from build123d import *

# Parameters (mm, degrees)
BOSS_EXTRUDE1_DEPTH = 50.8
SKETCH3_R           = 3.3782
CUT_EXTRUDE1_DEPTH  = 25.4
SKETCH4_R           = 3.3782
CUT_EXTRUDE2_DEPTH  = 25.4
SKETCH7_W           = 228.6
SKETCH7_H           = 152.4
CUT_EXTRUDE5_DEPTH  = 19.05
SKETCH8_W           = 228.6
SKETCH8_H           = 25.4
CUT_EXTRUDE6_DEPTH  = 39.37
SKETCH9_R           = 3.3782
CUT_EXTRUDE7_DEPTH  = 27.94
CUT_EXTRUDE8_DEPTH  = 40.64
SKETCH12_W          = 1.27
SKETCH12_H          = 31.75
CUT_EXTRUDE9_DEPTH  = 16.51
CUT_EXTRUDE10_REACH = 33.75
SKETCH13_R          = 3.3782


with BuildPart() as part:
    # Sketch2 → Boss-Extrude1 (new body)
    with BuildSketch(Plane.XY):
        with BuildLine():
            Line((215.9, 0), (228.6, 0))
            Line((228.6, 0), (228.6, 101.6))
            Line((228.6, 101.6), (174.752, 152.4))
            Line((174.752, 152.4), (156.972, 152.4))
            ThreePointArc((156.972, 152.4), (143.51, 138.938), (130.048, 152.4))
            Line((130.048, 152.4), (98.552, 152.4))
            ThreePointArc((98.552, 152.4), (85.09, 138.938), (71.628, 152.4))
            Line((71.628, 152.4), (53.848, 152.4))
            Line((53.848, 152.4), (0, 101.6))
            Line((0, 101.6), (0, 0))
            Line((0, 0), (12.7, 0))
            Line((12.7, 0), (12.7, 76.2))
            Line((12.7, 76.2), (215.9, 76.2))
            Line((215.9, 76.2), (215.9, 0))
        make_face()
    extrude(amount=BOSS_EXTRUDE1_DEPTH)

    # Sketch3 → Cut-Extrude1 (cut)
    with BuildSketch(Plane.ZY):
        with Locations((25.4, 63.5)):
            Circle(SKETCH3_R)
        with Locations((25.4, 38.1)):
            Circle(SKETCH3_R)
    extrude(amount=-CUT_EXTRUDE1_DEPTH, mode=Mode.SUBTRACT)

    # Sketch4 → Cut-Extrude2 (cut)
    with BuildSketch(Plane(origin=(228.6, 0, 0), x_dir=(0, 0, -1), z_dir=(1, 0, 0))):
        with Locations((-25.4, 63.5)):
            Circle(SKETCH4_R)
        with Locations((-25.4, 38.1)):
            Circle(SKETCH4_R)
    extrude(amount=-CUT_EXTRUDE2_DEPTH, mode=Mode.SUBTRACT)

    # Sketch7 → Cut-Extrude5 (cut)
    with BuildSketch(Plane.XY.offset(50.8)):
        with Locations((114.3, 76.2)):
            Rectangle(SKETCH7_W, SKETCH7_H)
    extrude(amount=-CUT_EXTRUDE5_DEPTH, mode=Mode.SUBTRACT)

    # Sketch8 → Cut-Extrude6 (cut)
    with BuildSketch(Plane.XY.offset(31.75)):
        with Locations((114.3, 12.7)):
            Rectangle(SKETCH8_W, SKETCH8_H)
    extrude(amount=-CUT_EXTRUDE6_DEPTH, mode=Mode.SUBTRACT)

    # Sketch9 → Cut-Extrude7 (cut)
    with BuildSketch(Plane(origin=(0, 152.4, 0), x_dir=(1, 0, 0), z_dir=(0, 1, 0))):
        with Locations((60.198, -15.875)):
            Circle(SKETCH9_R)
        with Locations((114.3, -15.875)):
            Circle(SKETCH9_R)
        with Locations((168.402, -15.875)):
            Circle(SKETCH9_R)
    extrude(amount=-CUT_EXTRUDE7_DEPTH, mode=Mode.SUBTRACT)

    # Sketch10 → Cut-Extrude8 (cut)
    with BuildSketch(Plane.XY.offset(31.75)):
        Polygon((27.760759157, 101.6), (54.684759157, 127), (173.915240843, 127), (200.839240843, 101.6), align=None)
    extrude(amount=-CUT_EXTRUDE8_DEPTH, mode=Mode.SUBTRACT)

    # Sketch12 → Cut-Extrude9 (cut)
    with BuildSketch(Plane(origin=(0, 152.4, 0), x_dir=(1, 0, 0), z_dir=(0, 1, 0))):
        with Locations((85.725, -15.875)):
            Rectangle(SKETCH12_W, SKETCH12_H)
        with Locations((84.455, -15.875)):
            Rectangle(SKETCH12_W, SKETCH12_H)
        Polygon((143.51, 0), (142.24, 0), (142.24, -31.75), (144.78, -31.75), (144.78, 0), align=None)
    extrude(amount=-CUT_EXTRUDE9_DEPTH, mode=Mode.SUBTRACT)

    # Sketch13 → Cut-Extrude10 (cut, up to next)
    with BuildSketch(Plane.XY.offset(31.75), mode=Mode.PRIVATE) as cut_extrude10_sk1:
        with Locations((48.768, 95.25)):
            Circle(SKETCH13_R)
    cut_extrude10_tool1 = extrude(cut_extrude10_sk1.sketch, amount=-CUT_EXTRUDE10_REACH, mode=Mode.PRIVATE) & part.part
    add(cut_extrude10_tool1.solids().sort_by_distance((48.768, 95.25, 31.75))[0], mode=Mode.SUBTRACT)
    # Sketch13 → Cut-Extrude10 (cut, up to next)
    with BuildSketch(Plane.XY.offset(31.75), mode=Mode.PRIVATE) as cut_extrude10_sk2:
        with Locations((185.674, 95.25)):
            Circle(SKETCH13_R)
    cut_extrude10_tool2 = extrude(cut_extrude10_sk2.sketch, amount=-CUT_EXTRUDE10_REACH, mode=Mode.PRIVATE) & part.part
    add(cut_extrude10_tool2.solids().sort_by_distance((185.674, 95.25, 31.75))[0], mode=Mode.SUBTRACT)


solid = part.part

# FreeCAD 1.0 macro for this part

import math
import FreeCAD as App
import Part
import Sketcher
from FreeCAD import Vector
Q = App.Units.Quantity


def add_polygon(sketch, points):
    """Adds a closed chain of lines whose ends are joined by coincident constraints."""
    first, n = sketch.GeometryCount, len(points)
    for a, b in zip(points, points[1:] + points[:1]):
        sketch.addGeometry(Part.LineSegment(App.Vector(*a, 0), App.Vector(*b, 0)), False)
    for i in range(n):
        sketch.addConstraint(Sketcher.Constraint("Coincident", first + i, 2, first + (i + 1) % n, 1))

doc = App.newDocument("Part")
body = doc.addObject("PartDesign::Body", "Body")

# Sketch on XY plane
sketch1 = body.newObject("Sketcher::SketchObject", "Sketch")
sketch1.AttachmentSupport = (doc.getObject("XY_Plane"), [""])
sketch1.MapMode = "FlatFace"
sketch1.addGeometry(Part.LineSegment(Vector(216, 0, 0), Vector(229, 0, 0)), False)
sketch1.addGeometry(Part.LineSegment(Vector(229, 0, 0), Vector(229, 102, 0)), False)
sketch1.addGeometry(Part.LineSegment(Vector(229, 102, 0), Vector(175, 152, 0)), False)
sketch1.addGeometry(Part.LineSegment(Vector(175, 152, 0), Vector(157, 152, 0)), False)
sketch1.addGeometry(Part.ArcOfCircle(Part.Circle(Vector(144, 152, 0), Vector(0, 0, 1), 13), math.radians(180), math.radians(360)), False)
sketch1.addGeometry(Part.LineSegment(Vector(130, 152, 0), Vector(99, 152, 0)), False)
sketch1.addGeometry(Part.ArcOfCircle(Part.Circle(Vector(85, 152, 0), Vector(0, 0, 1), 13), math.radians(180), math.radians(360)), False)
sketch1.addGeometry(Part.LineSegment(Vector(72, 152, 0), Vector(54, 152, 0)), False)
sketch1.addGeometry(Part.LineSegment(Vector(54, 152, 0), Vector(0, 102, 0)), False)
sketch1.addGeometry(Part.LineSegment(Vector(0, 102, 0), Vector(0, 0, 0)), False)
sketch1.addGeometry(Part.LineSegment(Vector(0, 0, 0), Vector(13, 0, 0)), False)
sketch1.addGeometry(Part.LineSegment(Vector(13, 0, 0), Vector(13, 76, 0)), False)
sketch1.addGeometry(Part.LineSegment(Vector(13, 76, 0), Vector(216, 76, 0)), False)
sketch1.addGeometry(Part.LineSegment(Vector(216, 76, 0), Vector(216, 0, 0)), False)
sketch1.addConstraint(Sketcher.Constraint("Coincident", 0, 2, 1, 1))
sketch1.addConstraint(Sketcher.Constraint("Coincident", 1, 2, 2, 1))
sketch1.addConstraint(Sketcher.Constraint("Coincident", 2, 2, 3, 1))
sketch1.addConstraint(Sketcher.Constraint("Coincident", 3, 2, 4, 2))
sketch1.addConstraint(Sketcher.Constraint("Coincident", 4, 1, 5, 1))
sketch1.addConstraint(Sketcher.Constraint("Coincident", 5, 2, 6, 2))
sketch1.addConstraint(Sketcher.Constraint("Coincident", 6, 1, 7, 1))
sketch1.addConstraint(Sketcher.Constraint("Coincident", 7, 2, 8, 1))
sketch1.addConstraint(Sketcher.Constraint("Coincident", 8, 2, 9, 1))
sketch1.addConstraint(Sketcher.Constraint("Coincident", 9, 2, 10, 1))
sketch1.addConstraint(Sketcher.Constraint("Coincident", 10, 2, 11, 1))
sketch1.addConstraint(Sketcher.Constraint("Coincident", 11, 2, 12, 1))
sketch1.addConstraint(Sketcher.Constraint("Coincident", 12, 2, 13, 1))
sketch1.addConstraint(Sketcher.Constraint("Coincident", 13, 2, 0, 1))
sketch1.addConstraint(Sketcher.Constraint("Horizontal", 0))
sketch1.addConstraint(Sketcher.Constraint("Vertical", 1))
sketch1.addConstraint(Sketcher.Constraint("Horizontal", 3))
sketch1.addConstraint(Sketcher.Constraint("Horizontal", 5))
sketch1.addConstraint(Sketcher.Constraint("Horizontal", 7))
sketch1.addConstraint(Sketcher.Constraint("Vertical", 9))
sketch1.addConstraint(Sketcher.Constraint("Horizontal", 10))
sketch1.addConstraint(Sketcher.Constraint("Vertical", 11))
sketch1.addConstraint(Sketcher.Constraint("Horizontal", 12))
sketch1.addConstraint(Sketcher.Constraint("Vertical", 13))
sketch1.addConstraint(Sketcher.Constraint("Coincident", 9, 2, -1, 1))
sketch1.addConstraint(Sketcher.Constraint("Equal", 4, 6))
sketch1.addConstraint(Sketcher.Constraint("PointOnObject", 0, 2, -1))
sketch1.addConstraint(Sketcher.Constraint("Horizontal", 4, 3, 6, 3))
sketch1.addConstraint(Sketcher.Constraint("Horizontal", 6, 3, 2, 2))
sketch1.addConstraint(Sketcher.Constraint("Horizontal", 3, 2, 4, 1))
sketch1.addConstraint(Sketcher.Constraint("Horizontal", 5, 2, 6, 1))
sketch1.addConstraint(Sketcher.Constraint("Horizontal", 1, 2, 8, 2))
sketch1.addConstraint(Sketcher.Constraint("Equal", 3, 7))
sketch1.addConstraint(Sketcher.Constraint("Equal", 0, 10))
sketch1.addConstraint(Sketcher.Constraint("Equal", 2, 8))
sketch1.addConstraint(Sketcher.Constraint("DistanceX", 12, 1, 12, 2, Q("8 in")))
sketch1.addConstraint(Sketcher.Constraint("DistanceY", 1, 1, 1, 2, Q("4 in")))
sketch1.addConstraint(Sketcher.Constraint("DistanceY", 11, 1, 11, 2, Q("3 in")))
sketch1.addConstraint(Sketcher.Constraint("Radius", 4, Q("0.53 in")))
sketch1.addConstraint(Sketcher.Constraint("DistanceX", 0, 1, 0, 2, Q("0.5 in")))
sketch1.addConstraint(Sketcher.Constraint("DistanceX", 3, 2, 3, 1, Q("0.7 in")))
sketch1.addConstraint(Sketcher.Constraint("DistanceY", -1, 1, 4, 3, Q("6 in")))
sketch1.addConstraint(Sketcher.Constraint("DistanceX", 5, 2, 2, 2, Q("3 in")))
pad1 = body.newObject("PartDesign::Pad", "Pad")
pad1.Profile = sketch1
pad1.Length = Q("2 in")

# Sketch on YZ plane
sketch2 = body.newObject("Sketcher::SketchObject", "Sketch001")
sketch2.AttachmentSupport = (doc.getObject("YZ_Plane"), [""])
sketch2.MapMode = "FlatFace"
sketch2.addGeometry(Part.Circle(Vector(63.5, 25.4, 0), Vector(0, 0, 1), 3.4), False)
sketch2.addGeometry(Part.Circle(Vector(38.1, 25.4, 0), Vector(0, 0, 1), 3.4), False)
sketch2.addConstraint(Sketcher.Constraint("Equal", 0, 1))
sketch2.addConstraint(Sketcher.Constraint("Horizontal", 0, 3, 1, 3))
sketch2.addConstraint(Sketcher.Constraint("Diameter", 0, Q("0.266 in")))
sketch2.addConstraint(Sketcher.Constraint("DistanceY", -1, 1, 0, 3, Q("1 in")))
sketch2.addConstraint(Sketcher.Constraint("DistanceX", 1, 3, 0, 3, Q("1 in")))
sketch2.addConstraint(Sketcher.Constraint("DistanceX", -1, 1, 0, 3, Q("2.5 in")))
pocket1 = body.newObject("PartDesign::Pocket", "Pocket")
pocket1.Profile = sketch2
pocket1.Length = Q("1 in")
pocket1.Reversed = True

# Sketch on YZ plane
sketch3 = body.newObject("Sketcher::SketchObject", "Sketch002")
sketch3.AttachmentSupport = (doc.getObject("YZ_Plane"), [""])
sketch3.MapMode = "FlatFace"
sketch3.AttachmentOffset = App.Placement(Vector(0, 0, 9 * 25.4), App.Rotation())
sketch3.addGeometry(Part.Circle(Vector(63.5, 25.4, 0), Vector(0, 0, 1), 3.4), False)
sketch3.addGeometry(Part.Circle(Vector(38.1, 25.4, 0), Vector(0, 0, 1), 3.4), False)
sketch3.addConstraint(Sketcher.Constraint("Equal", 0, 1))
sketch3.addConstraint(Sketcher.Constraint("Horizontal", 0, 3, 1, 3))
sketch3.addConstraint(Sketcher.Constraint("Diameter", 0, Q("0.266 in")))
sketch3.addConstraint(Sketcher.Constraint("DistanceY", -1, 1, 0, 3, Q("1 in")))
sketch3.addConstraint(Sketcher.Constraint("DistanceX", 1, 3, 0, 3, Q("1 in")))
sketch3.addConstraint(Sketcher.Constraint("DistanceX", -1, 1, 0, 3, Q("2.5 in")))
pocket2 = body.newObject("PartDesign::Pocket", "Pocket001")
pocket2.Profile = sketch3
pocket2.Length = Q("1 in")

# Sketch on XY plane
sketch4 = body.newObject("Sketcher::SketchObject", "Sketch003")
sketch4.AttachmentSupport = (doc.getObject("XY_Plane"), [""])
sketch4.MapMode = "FlatFace"
sketch4.AttachmentOffset = App.Placement(Vector(0, 0, 2 * 25.4), App.Rotation())
add_polygon(sketch4, [(0, 152), (0, 0), (229, 0), (229, 152)])  # lines 0-3
sketch4.addConstraint(Sketcher.Constraint("Vertical", 0))
sketch4.addConstraint(Sketcher.Constraint("Horizontal", 1))
sketch4.addConstraint(Sketcher.Constraint("Vertical", 2))
sketch4.addConstraint(Sketcher.Constraint("Horizontal", 3))
sketch4.addConstraint(Sketcher.Constraint("Coincident", 0, 2, -1, 1))
sketch4.addConstraint(Sketcher.Constraint("DistanceX", 1, 1, 1, 2, Q("9 in")))
sketch4.addConstraint(Sketcher.Constraint("DistanceY", 0, 2, 0, 1, Q("6 in")))
pocket3 = body.newObject("PartDesign::Pocket", "Pocket002")
pocket3.Profile = sketch4
pocket3.Length = Q("0.75 in")

# Sketch on XY plane
sketch5 = body.newObject("Sketcher::SketchObject", "Sketch004")
sketch5.AttachmentSupport = (doc.getObject("XY_Plane"), [""])
sketch5.MapMode = "FlatFace"
sketch5.AttachmentOffset = App.Placement(Vector(0, 0, 1.25 * 25.4), App.Rotation())
add_polygon(sketch5, [(0, 25), (0, 0), (229, 0), (229, 25)])  # lines 0-3
sketch5.addConstraint(Sketcher.Constraint("Vertical", 0))
sketch5.addConstraint(Sketcher.Constraint("Horizontal", 1))
sketch5.addConstraint(Sketcher.Constraint("Vertical", 2))
sketch5.addConstraint(Sketcher.Constraint("Horizontal", 3))
sketch5.addConstraint(Sketcher.Constraint("Coincident", 0, 2, -1, 1))
sketch5.addConstraint(Sketcher.Constraint("DistanceX", 1, 1, 1, 2, Q("9 in")))
sketch5.addConstraint(Sketcher.Constraint("DistanceY", 0, 2, 0, 1, Q("1 in")))
pocket4 = body.newObject("PartDesign::Pocket", "Pocket003")
pocket4.Profile = sketch5
pocket4.Length = Q("1.55 in")

# Sketch on XZ plane
sketch6 = body.newObject("Sketcher::SketchObject", "Sketch005")
sketch6.AttachmentSupport = (doc.getObject("XZ_Plane"), [""])
sketch6.MapMode = "FlatFace"
sketch6.AttachmentOffset = App.Placement(Vector(0, 0, -6 * 25.4), App.Rotation())
sketch6.addGeometry(Part.Circle(Vector(60.2, 15.9, 0), Vector(0, 0, 1), 3.4), False)
sketch6.addGeometry(Part.Circle(Vector(114.3, 15.9, 0), Vector(0, 0, 1), 3.4), False)
sketch6.addGeometry(Part.Circle(Vector(168.4, 15.9, 0), Vector(0, 0, 1), 3.4), False)
sketch6.addConstraint(Sketcher.Constraint("Equal", 0, 1))
sketch6.addConstraint(Sketcher.Constraint("Equal", 1, 2))
sketch6.addConstraint(Sketcher.Constraint("Horizontal", 0, 3, 1, 3))
sketch6.addConstraint(Sketcher.Constraint("Horizontal", 1, 3, 2, 3))
sketch6.addConstraint(Sketcher.Constraint("Diameter", 0, Q("0.266 in")))
sketch6.addConstraint(Sketcher.Constraint("DistanceX", -1, 1, 1, 3, Q("4.5 in")))
sketch6.addConstraint(Sketcher.Constraint("DistanceX", -1, 1, 0, 3, Q("2.37 in")))
sketch6.addConstraint(Sketcher.Constraint("DistanceX", -1, 1, 2, 3, Q("6.63 in")))
sketch6.addConstraint(Sketcher.Constraint("DistanceY", -1, 1, 0, 3, Q("0.625 in")))
pocket5 = body.newObject("PartDesign::Pocket", "Pocket004")
pocket5.Profile = sketch6
pocket5.Length = Q("1.1 in")
pocket5.Reversed = True

# Sketch on XY plane
sketch7 = body.newObject("Sketcher::SketchObject", "Sketch006")
sketch7.AttachmentSupport = (doc.getObject("XY_Plane"), [""])
sketch7.MapMode = "FlatFace"
sketch7.AttachmentOffset = App.Placement(Vector(0, 0, 1.25 * 25.4), App.Rotation())
add_polygon(sketch7, [(55, 127), (28, 102), (201, 102), (174, 127)])  # lines 0-3
sketch7.addConstraint(Sketcher.Constraint("Horizontal", 1))
sketch7.addConstraint(Sketcher.Constraint("Horizontal", 3))
sketch7.addConstraint(Sketcher.Constraint("Equal", 0, 2))
sketch7.addConstraint(Sketcher.Constraint("DistanceY", -1, 1, 0, 2, Q("4 in")))
sketch7.addConstraint(Sketcher.Constraint("DistanceY", -1, 1, 2, 2, Q("5 in")))
sketch7.addConstraint(Sketcher.Constraint("DistanceX", 2, 2, 1, 2, Q("1.06 in")))
sketch7.addConstraint(Sketcher.Constraint("DistanceX", 1, 1, 1, 2, Q("173.078482 mm")))
sketch7.addConstraint(Sketcher.Constraint("DistanceX", -1, 1, 0, 2, Q("27.760759 mm")))
pocket6 = body.newObject("PartDesign::Pocket", "Pocket005")
pocket6.Profile = sketch7
pocket6.Length = Q("1.6 in")

# Sketch on XZ plane
sketch8 = body.newObject("Sketcher::SketchObject", "Sketch007")
sketch8.AttachmentSupport = (doc.getObject("XZ_Plane"), [""])
sketch8.MapMode = "FlatFace"
sketch8.AttachmentOffset = App.Placement(Vector(0, 0, -6 * 25.4), App.Rotation())
add_polygon(sketch8, [(86.4, 31.8), (86.4, 0), (83.8, 0), (83.8, 31.8)])  # lines 0-3
add_polygon(sketch8, [(142.2, 0), (142.2, 31.8), (144.8, 31.8), (144.8, 0)])  # lines 4-7
sketch8.addConstraint(Sketcher.Constraint("Vertical", 0))
sketch8.addConstraint(Sketcher.Constraint("Horizontal", 1))
sketch8.addConstraint(Sketcher.Constraint("Vertical", 2))
sketch8.addConstraint(Sketcher.Constraint("Horizontal", 3))
sketch8.addConstraint(Sketcher.Constraint("Vertical", 4))
sketch8.addConstraint(Sketcher.Constraint("Horizontal", 5))
sketch8.addConstraint(Sketcher.Constraint("Vertical", 6))
sketch8.addConstraint(Sketcher.Constraint("Horizontal", 7))
sketch8.addConstraint(Sketcher.Constraint("PointOnObject", 0, 2, -1))
sketch8.addConstraint(Sketcher.Constraint("PointOnObject", 6, 2, -1))
sketch8.addConstraint(Sketcher.Constraint("Horizontal", 3, 2, 4, 2))
sketch8.addConstraint(Sketcher.Constraint("Equal", 3, 5))
sketch8.addConstraint(Sketcher.Constraint("DistanceX", 1, 2, 1, 1, Q("0.1 in")))
sketch8.addConstraint(Sketcher.Constraint("DistanceY", 0, 2, 0, 1, Q("1.25 in")))
sketch8.addConstraint(Sketcher.Constraint("DistanceX", -1, 1, 0, 2, Q("3.4 in")))
sketch8.addConstraint(Sketcher.Constraint("DistanceX", -1, 1, 4, 2, Q("5.6 in")))
pocket7 = body.newObject("PartDesign::Pocket", "Pocket006")
pocket7.Profile = sketch8
pocket7.Length = Q("0.65 in")
pocket7.Reversed = True

# Sketch on XY plane
sketch9 = body.newObject("Sketcher::SketchObject", "Sketch008")
sketch9.AttachmentSupport = (doc.getObject("XY_Plane"), [""])
sketch9.MapMode = "FlatFace"
sketch9.AttachmentOffset = App.Placement(Vector(0, 0, 1.25 * 25.4), App.Rotation())
sketch9.addGeometry(Part.Circle(Vector(48.8, 95.2, 0), Vector(0, 0, 1), 3.4), False)
sketch9.addConstraint(Sketcher.Constraint("Diameter", 0, Q("0.266 in")))
sketch9.addConstraint(Sketcher.Constraint("DistanceX", -1, 1, 0, 3, Q("1.92 in")))
sketch9.addConstraint(Sketcher.Constraint("DistanceY", -1, 1, 0, 3, Q("3.75 in")))
pocket8 = body.newObject("PartDesign::Pocket", "Pocket007")
pocket8.Profile = sketch9
pocket8.Type = "UpToFirst"

# Sketch on XY plane
sketch10 = body.newObject("Sketcher::SketchObject", "Sketch009")
sketch10.AttachmentSupport = (doc.getObject("XY_Plane"), [""])
sketch10.MapMode = "FlatFace"
sketch10.AttachmentOffset = App.Placement(Vector(0, 0, 1.25 * 25.4), App.Rotation())
sketch10.addGeometry(Part.Circle(Vector(185.7, 95.2, 0), Vector(0, 0, 1), 3.4), False)
sketch10.addConstraint(Sketcher.Constraint("Diameter", 0, Q("0.266 in")))
sketch10.addConstraint(Sketcher.Constraint("DistanceX", -1, 1, 0, 3, Q("7.31 in")))
sketch10.addConstraint(Sketcher.Constraint("DistanceY", -1, 1, 0, 3, Q("3.75 in")))
pocket9 = body.newObject("PartDesign::Pocket", "Pocket008")
pocket9.Profile = sketch10
pocket9.Type = "UpToFirst"

doc.recompute()
